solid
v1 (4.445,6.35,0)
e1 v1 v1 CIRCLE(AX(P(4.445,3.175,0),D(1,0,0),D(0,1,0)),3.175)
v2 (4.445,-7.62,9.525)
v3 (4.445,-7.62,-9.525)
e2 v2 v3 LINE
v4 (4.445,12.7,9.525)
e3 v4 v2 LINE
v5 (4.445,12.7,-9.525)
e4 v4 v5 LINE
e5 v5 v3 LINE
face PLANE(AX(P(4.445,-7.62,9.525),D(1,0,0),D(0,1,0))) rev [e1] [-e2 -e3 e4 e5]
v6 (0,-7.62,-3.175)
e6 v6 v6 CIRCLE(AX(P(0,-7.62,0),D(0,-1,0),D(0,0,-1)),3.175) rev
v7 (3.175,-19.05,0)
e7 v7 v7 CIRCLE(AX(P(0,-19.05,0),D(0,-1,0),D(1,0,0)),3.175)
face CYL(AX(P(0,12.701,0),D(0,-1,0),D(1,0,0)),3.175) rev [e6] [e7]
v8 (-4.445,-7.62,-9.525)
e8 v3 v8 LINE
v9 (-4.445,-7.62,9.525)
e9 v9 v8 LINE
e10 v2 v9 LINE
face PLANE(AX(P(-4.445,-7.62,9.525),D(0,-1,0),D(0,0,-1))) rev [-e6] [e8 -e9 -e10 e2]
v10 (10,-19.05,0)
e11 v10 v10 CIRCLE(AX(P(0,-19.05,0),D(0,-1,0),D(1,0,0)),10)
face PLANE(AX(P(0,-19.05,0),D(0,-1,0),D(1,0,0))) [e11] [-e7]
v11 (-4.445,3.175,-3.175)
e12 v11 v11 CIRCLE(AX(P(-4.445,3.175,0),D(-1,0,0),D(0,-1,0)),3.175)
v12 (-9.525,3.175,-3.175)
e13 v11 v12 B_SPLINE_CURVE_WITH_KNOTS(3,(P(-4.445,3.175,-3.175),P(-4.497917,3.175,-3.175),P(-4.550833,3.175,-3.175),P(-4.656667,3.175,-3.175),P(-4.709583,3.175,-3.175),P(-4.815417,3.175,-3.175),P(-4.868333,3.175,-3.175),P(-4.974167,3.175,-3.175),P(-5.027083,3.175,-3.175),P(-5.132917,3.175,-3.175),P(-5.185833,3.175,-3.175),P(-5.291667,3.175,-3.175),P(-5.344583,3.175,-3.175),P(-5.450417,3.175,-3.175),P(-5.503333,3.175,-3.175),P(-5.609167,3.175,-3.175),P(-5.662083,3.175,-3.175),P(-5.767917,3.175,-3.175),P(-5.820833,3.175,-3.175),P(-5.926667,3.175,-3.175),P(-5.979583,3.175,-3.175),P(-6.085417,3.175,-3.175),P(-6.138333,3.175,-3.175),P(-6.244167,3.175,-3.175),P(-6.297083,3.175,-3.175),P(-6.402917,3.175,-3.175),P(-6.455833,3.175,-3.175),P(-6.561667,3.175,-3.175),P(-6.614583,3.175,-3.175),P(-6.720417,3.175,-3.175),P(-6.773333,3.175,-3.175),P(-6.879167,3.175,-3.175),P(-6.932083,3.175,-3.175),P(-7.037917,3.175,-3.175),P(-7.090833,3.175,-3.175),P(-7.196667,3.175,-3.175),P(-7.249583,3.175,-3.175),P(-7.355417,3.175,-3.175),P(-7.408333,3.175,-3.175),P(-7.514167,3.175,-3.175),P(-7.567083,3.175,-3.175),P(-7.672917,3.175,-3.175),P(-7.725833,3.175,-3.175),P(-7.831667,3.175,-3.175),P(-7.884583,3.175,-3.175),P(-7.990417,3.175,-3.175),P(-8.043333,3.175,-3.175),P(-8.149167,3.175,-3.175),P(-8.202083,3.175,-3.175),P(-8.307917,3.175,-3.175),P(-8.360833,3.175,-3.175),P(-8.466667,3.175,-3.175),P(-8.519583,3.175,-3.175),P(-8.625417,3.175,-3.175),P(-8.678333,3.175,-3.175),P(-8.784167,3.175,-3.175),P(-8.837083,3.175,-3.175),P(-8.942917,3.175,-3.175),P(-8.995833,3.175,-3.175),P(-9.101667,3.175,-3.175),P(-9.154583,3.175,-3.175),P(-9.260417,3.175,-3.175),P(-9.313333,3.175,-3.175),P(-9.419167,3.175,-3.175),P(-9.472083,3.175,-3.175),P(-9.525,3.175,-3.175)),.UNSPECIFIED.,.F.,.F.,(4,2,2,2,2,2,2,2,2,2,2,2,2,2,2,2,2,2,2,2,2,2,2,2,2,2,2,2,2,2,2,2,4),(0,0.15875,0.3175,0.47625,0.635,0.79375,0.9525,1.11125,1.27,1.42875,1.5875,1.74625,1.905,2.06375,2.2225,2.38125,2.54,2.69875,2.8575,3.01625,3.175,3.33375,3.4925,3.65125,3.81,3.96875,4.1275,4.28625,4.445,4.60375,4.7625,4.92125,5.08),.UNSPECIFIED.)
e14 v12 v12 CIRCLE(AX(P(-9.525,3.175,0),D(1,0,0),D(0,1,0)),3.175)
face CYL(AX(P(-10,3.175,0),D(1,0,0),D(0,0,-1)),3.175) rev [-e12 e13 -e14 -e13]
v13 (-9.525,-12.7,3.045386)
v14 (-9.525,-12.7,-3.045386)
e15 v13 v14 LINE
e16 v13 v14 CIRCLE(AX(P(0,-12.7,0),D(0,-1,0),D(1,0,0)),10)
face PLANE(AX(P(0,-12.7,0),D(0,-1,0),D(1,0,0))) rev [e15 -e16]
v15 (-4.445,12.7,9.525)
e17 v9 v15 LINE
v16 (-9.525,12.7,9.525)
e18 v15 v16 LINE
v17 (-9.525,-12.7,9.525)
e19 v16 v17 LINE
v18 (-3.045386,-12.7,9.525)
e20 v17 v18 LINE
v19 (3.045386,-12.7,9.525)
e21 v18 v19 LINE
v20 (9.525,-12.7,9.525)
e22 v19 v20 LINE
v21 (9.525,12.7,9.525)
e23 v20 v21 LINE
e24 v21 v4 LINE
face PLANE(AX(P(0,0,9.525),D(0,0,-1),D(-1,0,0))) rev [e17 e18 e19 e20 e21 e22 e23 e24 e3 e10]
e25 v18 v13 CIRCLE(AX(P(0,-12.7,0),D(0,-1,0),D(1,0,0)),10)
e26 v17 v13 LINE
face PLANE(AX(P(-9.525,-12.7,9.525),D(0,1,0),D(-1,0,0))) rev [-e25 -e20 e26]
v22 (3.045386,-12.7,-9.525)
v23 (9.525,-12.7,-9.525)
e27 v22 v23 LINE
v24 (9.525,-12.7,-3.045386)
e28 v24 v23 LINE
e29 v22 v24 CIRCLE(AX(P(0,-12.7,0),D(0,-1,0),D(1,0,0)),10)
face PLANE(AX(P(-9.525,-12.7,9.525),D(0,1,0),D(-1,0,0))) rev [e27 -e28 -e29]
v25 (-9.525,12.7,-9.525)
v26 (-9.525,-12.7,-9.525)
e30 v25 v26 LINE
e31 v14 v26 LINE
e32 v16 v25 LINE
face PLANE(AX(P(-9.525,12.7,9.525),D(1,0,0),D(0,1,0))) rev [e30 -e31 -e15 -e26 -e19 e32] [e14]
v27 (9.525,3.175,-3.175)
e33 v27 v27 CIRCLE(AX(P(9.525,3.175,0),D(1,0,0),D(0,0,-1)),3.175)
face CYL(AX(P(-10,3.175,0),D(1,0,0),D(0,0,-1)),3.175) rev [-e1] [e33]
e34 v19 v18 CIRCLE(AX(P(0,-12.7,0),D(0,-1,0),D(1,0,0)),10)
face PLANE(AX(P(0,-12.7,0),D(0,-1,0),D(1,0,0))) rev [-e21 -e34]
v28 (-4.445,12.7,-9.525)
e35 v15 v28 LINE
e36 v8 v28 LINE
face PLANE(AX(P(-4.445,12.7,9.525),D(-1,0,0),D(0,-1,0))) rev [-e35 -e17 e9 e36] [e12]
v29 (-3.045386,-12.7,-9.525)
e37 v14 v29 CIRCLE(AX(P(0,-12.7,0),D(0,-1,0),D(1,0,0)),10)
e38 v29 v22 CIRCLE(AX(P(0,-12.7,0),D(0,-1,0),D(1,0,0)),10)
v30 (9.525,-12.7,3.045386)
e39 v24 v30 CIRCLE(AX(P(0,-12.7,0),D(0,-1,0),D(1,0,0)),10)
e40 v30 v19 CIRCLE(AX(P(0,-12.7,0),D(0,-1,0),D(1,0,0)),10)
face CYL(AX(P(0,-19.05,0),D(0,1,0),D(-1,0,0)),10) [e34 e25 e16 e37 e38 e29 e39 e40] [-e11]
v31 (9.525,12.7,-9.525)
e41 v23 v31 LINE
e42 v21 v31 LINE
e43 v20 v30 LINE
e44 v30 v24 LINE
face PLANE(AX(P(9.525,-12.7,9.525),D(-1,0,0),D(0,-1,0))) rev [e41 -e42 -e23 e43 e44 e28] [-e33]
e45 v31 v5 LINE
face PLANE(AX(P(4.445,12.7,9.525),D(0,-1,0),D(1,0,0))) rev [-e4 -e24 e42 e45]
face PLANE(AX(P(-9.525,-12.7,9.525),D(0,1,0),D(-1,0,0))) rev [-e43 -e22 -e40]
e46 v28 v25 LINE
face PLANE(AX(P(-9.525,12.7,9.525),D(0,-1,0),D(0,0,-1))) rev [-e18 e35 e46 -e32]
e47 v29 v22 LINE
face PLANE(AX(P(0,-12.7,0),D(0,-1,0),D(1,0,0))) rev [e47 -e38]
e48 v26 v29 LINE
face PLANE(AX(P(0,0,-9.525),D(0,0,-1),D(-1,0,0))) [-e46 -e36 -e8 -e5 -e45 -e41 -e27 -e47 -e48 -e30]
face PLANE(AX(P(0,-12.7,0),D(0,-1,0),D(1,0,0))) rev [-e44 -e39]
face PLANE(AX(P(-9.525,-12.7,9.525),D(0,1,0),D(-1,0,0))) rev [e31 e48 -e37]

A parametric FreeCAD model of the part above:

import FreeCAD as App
import Part
import Sketcher
Q = App.Units.Quantity

doc = App.newDocument("Part")
body = doc.addObject("PartDesign::Body", "Body")

# Sketch on XY plane
sketch1 = body.newObject("Sketcher::SketchObject", "Sketch")
sketch1.AttachmentSupport = (doc.getObject("XY_Plane"), [""])
sketch1.MapMode = "FlatFace"
sketch1.addGeometry(Part.LineSegment(App.Vector(-10, 13, 0), App.Vector(-10, -13, 0)), False)
sketch1.addGeometry(Part.LineSegment(App.Vector(-10, -13, 0), App.Vector(10, -13, 0)), False)
sketch1.addGeometry(Part.LineSegment(App.Vector(10, -13, 0), App.Vector(10, 13, 0)), False)
sketch1.addGeometry(Part.LineSegment(App.Vector(10, 13, 0), App.Vector(4, 13, 0)), False)
sketch1.addGeometry(Part.LineSegment(App.Vector(4, 13, 0), App.Vector(4, -8, 0)), False)
sketch1.addGeometry(Part.LineSegment(App.Vector(4, -8, 0), App.Vector(-4, -8, 0)), False)
sketch1.addGeometry(Part.LineSegment(App.Vector(-4, -8, 0), App.Vector(-4, 13, 0)), False)
sketch1.addGeometry(Part.LineSegment(App.Vector(-4, 13, 0), App.Vector(-10, 13, 0)), False)
sketch1.addConstraint(Sketcher.Constraint("Coincident", 0, 2, 1, 1))
sketch1.addConstraint(Sketcher.Constraint("Coincident", 1, 2, 2, 1))
sketch1.addConstraint(Sketcher.Constraint("Coincident", 2, 2, 3, 1))
sketch1.addConstraint(Sketcher.Constraint("Coincident", 3, 2, 4, 1))
sketch1.addConstraint(Sketcher.Constraint("Coincident", 4, 2, 5, 1))
sketch1.addConstraint(Sketcher.Constraint("Coincident", 5, 2, 6, 1))
sketch1.addConstraint(Sketcher.Constraint("Coincident", 6, 2, 7, 1))
sketch1.addConstraint(Sketcher.Constraint("Coincident", 7, 2, 0, 1))
sketch1.addConstraint(Sketcher.Constraint("Vertical", 0))
sketch1.addConstraint(Sketcher.Constraint("Horizontal", 1))
sketch1.addConstraint(Sketcher.Constraint("Vertical", 2))
sketch1.addConstraint(Sketcher.Constraint("Horizontal", 3))
sketch1.addConstraint(Sketcher.Constraint("Vertical", 4))
sketch1.addConstraint(Sketcher.Constraint("Horizontal", 5))
sketch1.addConstraint(Sketcher.Constraint("Vertical", 6))
sketch1.addConstraint(Sketcher.Constraint("Horizontal", 7))
sketch1.addConstraint(Sketcher.Constraint("Symmetric", 0, 2, 2, 2, -1, 1))
sketch1.addConstraint(Sketcher.Constraint("Symmetric", 3, 2, 6, 2, -2))
sketch1.addConstraint(Sketcher.Constraint("DistanceY", 0, 2, 0, 1, Q("1 in")))
sketch1.addConstraint(Sketcher.Constraint("DistanceX", 3, 2, 3, 1, Q("0.2 in")))
sketch1.addConstraint(Sketcher.Constraint("DistanceY", 4, 2, 4, 1, Q("0.8 in")))
sketch1.addConstraint(Sketcher.Constraint("DistanceX", 1, 1, 1, 2, Q("0.75 in")))
pad1 = body.newObject("PartDesign::Pad", "Pad")
pad1.Profile = sketch1
pad1.Length = Q("0.75 in")
pad1.Midplane = True

# Sketch on XZ plane
sketch2 = body.newObject("Sketcher::SketchObject", "Sketch001")
sketch2.AttachmentSupport = (doc.getObject("XZ_Plane"), [""])
sketch2.MapMode = "FlatFace"
sketch2.AttachmentOffset = App.Placement(App.Vector(0, 0, 0.5 * 25.4), App.Rotation())
sketch2.addGeometry(Part.Circle(App.Vector(0, 0, 0), App.Vector(0, 0, 1), 10), False)
sketch2.addConstraint(Sketcher.Constraint("Coincident", 0, 3, -1, 1))
sketch2.addConstraint(Sketcher.Constraint("Diameter", 0, Q("20 mm")))
pad2 = body.newObject("PartDesign::Pad", "Pad001")
pad2.Profile = sketch2
pad2.Length = Q("0.25 in")

# Sketch on XZ plane
sketch3 = body.newObject("Sketcher::SketchObject", "Sketch002")
sketch3.AttachmentSupport = (doc.getObject("XZ_Plane"), [""])
sketch3.MapMode = "FlatFace"
sketch3.AttachmentOffset = App.Placement(App.Vector(0, 0, 0.75 * 25.4), App.Rotation())
sketch3.addGeometry(Part.Circle(App.Vector(0, 0, 0), App.Vector(0, 0, 1), 3.2), False)
sketch3.addConstraint(Sketcher.Constraint("Coincident", 0, 3, -1, 1))
sketch3.addConstraint(Sketcher.Constraint("Diameter", 0, Q("0.25 in")))
pocket1 = body.newObject("PartDesign::Pocket", "Pocket")
pocket1.Profile = sketch3
pocket1.Type = "UpToFirst"

# Sketch on YZ plane
sketch4 = body.newObject("Sketcher::SketchObject", "Sketch003")
sketch4.AttachmentSupport = (doc.getObject("YZ_Plane"), [""])
sketch4.MapMode = "FlatFace"
sketch4.AttachmentOffset = App.Placement(App.Vector(0, 0, 0.375 * 25.4), App.Rotation())
sketch4.addGeometry(Part.Circle(App.Vector(3.2, 0, 0), App.Vector(0, 0, 1), 3.2), False)
sketch4.addConstraint(Sketcher.Constraint("PointOnObject", 0, 3, -1))
sketch4.addConstraint(Sketcher.Constraint("Diameter", 0, Q("0.25 in")))
sketch4.addConstraint(Sketcher.Constraint("DistanceX", -1, 1, 0, 3, Q("0.125 in")))
pocket2 = body.newObject("PartDesign::Pocket", "Pocket001")
pocket2.Profile = sketch4
pocket2.Type = "ThroughAll"

doc.recompute()
